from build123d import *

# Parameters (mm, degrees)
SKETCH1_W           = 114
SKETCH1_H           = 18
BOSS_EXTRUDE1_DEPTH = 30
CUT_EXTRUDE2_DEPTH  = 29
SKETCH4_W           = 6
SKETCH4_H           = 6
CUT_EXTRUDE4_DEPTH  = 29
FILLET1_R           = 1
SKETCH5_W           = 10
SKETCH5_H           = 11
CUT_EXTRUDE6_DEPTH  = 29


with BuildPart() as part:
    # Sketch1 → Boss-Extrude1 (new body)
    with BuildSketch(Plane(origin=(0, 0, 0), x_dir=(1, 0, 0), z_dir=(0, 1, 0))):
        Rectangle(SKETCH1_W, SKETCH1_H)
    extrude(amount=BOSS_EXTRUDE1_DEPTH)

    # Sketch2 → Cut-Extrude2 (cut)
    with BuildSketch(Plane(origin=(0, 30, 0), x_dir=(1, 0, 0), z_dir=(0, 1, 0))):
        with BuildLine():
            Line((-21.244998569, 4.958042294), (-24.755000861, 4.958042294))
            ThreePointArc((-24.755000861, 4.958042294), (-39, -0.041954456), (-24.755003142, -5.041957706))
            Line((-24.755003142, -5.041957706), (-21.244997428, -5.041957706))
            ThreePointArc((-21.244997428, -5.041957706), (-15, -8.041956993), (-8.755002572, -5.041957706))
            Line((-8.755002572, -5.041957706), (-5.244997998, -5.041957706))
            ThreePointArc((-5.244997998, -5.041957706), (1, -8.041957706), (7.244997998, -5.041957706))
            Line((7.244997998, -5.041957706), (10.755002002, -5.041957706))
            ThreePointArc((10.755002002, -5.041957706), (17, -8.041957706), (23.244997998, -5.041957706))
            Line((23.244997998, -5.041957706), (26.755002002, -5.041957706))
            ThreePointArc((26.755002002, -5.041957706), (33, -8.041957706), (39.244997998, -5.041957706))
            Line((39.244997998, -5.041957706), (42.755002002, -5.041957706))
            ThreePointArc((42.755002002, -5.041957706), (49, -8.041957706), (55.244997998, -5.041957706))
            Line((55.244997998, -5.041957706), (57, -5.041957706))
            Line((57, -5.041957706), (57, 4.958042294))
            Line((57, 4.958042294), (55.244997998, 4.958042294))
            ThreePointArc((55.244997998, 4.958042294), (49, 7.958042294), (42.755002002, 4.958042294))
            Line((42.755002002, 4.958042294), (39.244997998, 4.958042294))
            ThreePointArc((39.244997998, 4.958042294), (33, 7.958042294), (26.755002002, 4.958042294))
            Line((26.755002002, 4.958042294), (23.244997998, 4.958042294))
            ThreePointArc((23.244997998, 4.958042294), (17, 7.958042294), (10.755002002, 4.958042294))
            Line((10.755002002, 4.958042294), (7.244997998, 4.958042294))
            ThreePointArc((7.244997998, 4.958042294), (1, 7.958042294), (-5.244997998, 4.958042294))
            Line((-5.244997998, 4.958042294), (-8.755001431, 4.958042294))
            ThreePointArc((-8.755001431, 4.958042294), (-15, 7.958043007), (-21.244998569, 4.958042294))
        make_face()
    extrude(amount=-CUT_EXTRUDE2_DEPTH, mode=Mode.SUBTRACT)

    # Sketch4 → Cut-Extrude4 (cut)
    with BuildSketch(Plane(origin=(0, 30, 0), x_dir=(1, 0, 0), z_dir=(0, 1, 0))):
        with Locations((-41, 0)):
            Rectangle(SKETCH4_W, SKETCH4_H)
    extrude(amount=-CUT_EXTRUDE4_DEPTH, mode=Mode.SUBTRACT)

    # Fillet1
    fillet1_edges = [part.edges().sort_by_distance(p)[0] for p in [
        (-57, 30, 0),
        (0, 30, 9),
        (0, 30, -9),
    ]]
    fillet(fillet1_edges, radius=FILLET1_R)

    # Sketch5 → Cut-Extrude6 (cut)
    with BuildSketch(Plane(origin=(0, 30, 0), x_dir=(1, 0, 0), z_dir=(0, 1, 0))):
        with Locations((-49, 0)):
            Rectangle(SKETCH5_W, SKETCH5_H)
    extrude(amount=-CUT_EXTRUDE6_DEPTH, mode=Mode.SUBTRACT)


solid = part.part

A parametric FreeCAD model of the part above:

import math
import FreeCAD as App
import Part
import Sketcher
from FreeCAD import Vector
Q = App.Units.Quantity


def edges_at(feature, points):
    """Names of the edges that pass closest to the given points."""
    edges = feature.Shape.Edges
    near = lambda p: min(range(len(edges)), key=lambda i: edges[i].distToShape(Part.Vertex(*p))[0])
    return sorted({f"Edge{near(p) + 1}" for p in points})

doc = App.newDocument("Part")
body = doc.addObject("PartDesign::Body", "Body")

# Sketch on XZ plane
sketch1 = body.newObject("Sketcher::SketchObject", "Sketch")
sketch1.AttachmentSupport = (doc.getObject("XZ_Plane"), [""])
sketch1.MapMode = "FlatFace"
sketch1.addGeometry(Part.LineSegment(Vector(-57, -9, 0), Vector(-57, 9, 0)), False)
sketch1.addGeometry(Part.LineSegment(Vector(-57, 9, 0), Vector(57, 9, 0)), False)
sketch1.addGeometry(Part.LineSegment(Vector(57, 9, 0), Vector(57, -9, 0)), False)
sketch1.addGeometry(Part.LineSegment(Vector(57, -9, 0), Vector(-57, -9, 0)), False)
sketch1.addConstraint(Sketcher.Constraint("Coincident", 0, 2, 1, 1))
sketch1.addConstraint(Sketcher.Constraint("Coincident", 1, 2, 2, 1))
sketch1.addConstraint(Sketcher.Constraint("Coincident", 2, 2, 3, 1))
sketch1.addConstraint(Sketcher.Constraint("Coincident", 3, 2, 0, 1))
sketch1.addConstraint(Sketcher.Constraint("Vertical", 0))
sketch1.addConstraint(Sketcher.Constraint("Horizontal", 1))
sketch1.addConstraint(Sketcher.Constraint("Vertical", 2))
sketch1.addConstraint(Sketcher.Constraint("Horizontal", 3))
sketch1.addConstraint(Sketcher.Constraint("Symmetric", 0, 2, 2, 2, -1, 1))
sketch1.addConstraint(Sketcher.Constraint("DistanceX", 1, 1, 1, 2, Q("114 mm")))
sketch1.addConstraint(Sketcher.Constraint("DistanceY", 0, 1, 0, 2, Q("18 mm")))
pad1 = body.newObject("PartDesign::Pad", "Pad")
pad1.Profile = sketch1
pad1.Length = 30
pad1.Reversed = True

# Sketch on XZ plane
sketch2 = body.newObject("Sketcher::SketchObject", "Sketch001")
sketch2.AttachmentSupport = (doc.getObject("XZ_Plane"), [""])
sketch2.MapMode = "FlatFace"
sketch2.AttachmentOffset = App.Placement(Vector(0, 0, -30), App.Rotation())
sketch2.addGeometry(Part.LineSegment(Vector(-21.2, -5, 0), Vector(-24.8, -5, 0)), False)
sketch2.addGeometry(Part.ArcOfCircle(Part.Circle(Vector(-31, 0, 0), Vector(0, 0, 1), 8), math.radians(39), math.radians(321)), False)
sketch2.addGeometry(Part.LineSegment(Vector(-24.8, 5, 0), Vector(-21.2, 5, 0)), False)
sketch2.addGeometry(Part.ArcOfCircle(Part.Circle(Vector(-15, 0, 0), Vector(0, 0, 1), 8), math.radians(39), math.radians(141)), False)
sketch2.addGeometry(Part.LineSegment(Vector(-8.8, 5, 0), Vector(-5.2, 5, 0)), False)
sketch2.addGeometry(Part.ArcOfCircle(Part.Circle(Vector(1, 0, 0), Vector(0, 0, 1), 8), math.radians(39), math.radians(141)), False)
sketch2.addGeometry(Part.LineSegment(Vector(7.2, 5, 0), Vector(10.8, 5, 0)), False)
sketch2.addGeometry(Part.ArcOfCircle(Part.Circle(Vector(17, 0, 0), Vector(0, 0, 1), 8), math.radians(39), math.radians(141)), False)
sketch2.addGeometry(Part.LineSegment(Vector(23.2, 5, 0), Vector(26.8, 5, 0)), False)
sketch2.addGeometry(Part.ArcOfCircle(Part.Circle(Vector(33, 0, 0), Vector(0, 0, 1), 8), math.radians(39), math.radians(141)), False)
sketch2.addGeometry(Part.LineSegment(Vector(39.2, 5, 0), Vector(42.8, 5, 0)), False)
sketch2.addGeometry(Part.ArcOfCircle(Part.Circle(Vector(49, 0, 0), Vector(0, 0, 1), 8), math.radians(39), math.radians(141)), False)
sketch2.addGeometry(Part.LineSegment(Vector(55.2, 5, 0), Vector(57, 5, 0)), False)
sketch2.addGeometry(Part.LineSegment(Vector(57, 5, 0), Vector(57, -5, 0)), False)
sketch2.addGeometry(Part.LineSegment(Vector(57, -5, 0), Vector(55.2, -5, 0)), False)
sketch2.addGeometry(Part.ArcOfCircle(Part.Circle(Vector(49, 0, 0), Vector(0, 0, 1), 8), math.radians(-141), math.radians(-39)), False)
sketch2.addGeometry(Part.LineSegment(Vector(42.8, -5, 0), Vector(39.2, -5, 0)), False)
sketch2.addGeometry(Part.ArcOfCircle(Part.Circle(Vector(33, 0, 0), Vector(0, 0, 1), 8), math.radians(-141), math.radians(-39)), False)
sketch2.addGeometry(Part.LineSegment(Vector(26.8, -5, 0), Vector(23.2, -5, 0)), False)
sketch2.addGeometry(Part.ArcOfCircle(Part.Circle(Vector(17, 0, 0), Vector(0, 0, 1), 8), math.radians(-141), math.radians(-39)), False)
sketch2.addGeometry(Part.LineSegment(Vector(10.8, -5, 0), Vector(7.2, -5, 0)), False)
sketch2.addGeometry(Part.ArcOfCircle(Part.Circle(Vector(1, 0, 0), Vector(0, 0, 1), 8), math.radians(-141), math.radians(-39)), False)
sketch2.addGeometry(Part.LineSegment(Vector(-5.2, -5, 0), Vector(-8.8, -5, 0)), False)
sketch2.addGeometry(Part.ArcOfCircle(Part.Circle(Vector(-15, 0, 0), Vector(0, 0, 1), 8), math.radians(-141), math.radians(-39)), False)
sketch2.addConstraint(Sketcher.Constraint("Coincident", 0, 2, 1, 2))
sketch2.addConstraint(Sketcher.Constraint("Coincident", 1, 1, 2, 1))
sketch2.addConstraint(Sketcher.Constraint("Coincident", 2, 2, 3, 2))
sketch2.addConstraint(Sketcher.Constraint("Coincident", 3, 1, 4, 1))
sketch2.addConstraint(Sketcher.Constraint("Coincident", 4, 2, 5, 2))
sketch2.addConstraint(Sketcher.Constraint("Coincident", 5, 1, 6, 1))
sketch2.addConstraint(Sketcher.Constraint("Coincident", 6, 2, 7, 2))
sketch2.addConstraint(Sketcher.Constraint("Coincident", 7, 1, 8, 1))
sketch2.addConstraint(Sketcher.Constraint("Coincident", 8, 2, 9, 2))
sketch2.addConstraint(Sketcher.Constraint("Coincident", 9, 1, 10, 1))
sketch2.addConstraint(Sketcher.Constraint("Coincident", 10, 2, 11, 2))
sketch2.addConstraint(Sketcher.Constraint("Coincident", 11, 1, 12, 1))
sketch2.addConstraint(Sketcher.Constraint("Coincident", 12, 2, 13, 1))
sketch2.addConstraint(Sketcher.Constraint("Coincident", 13, 2, 14, 1))
sketch2.addConstraint(Sketcher.Constraint("Coincident", 14, 2, 15, 2))
sketch2.addConstraint(Sketcher.Constraint("Coincident", 15, 1, 16, 1))
sketch2.addConstraint(Sketcher.Constraint("Coincident", 16, 2, 17, 2))
sketch2.addConstraint(Sketcher.Constraint("Coincident", 17, 1, 18, 1))
sketch2.addConstraint(Sketcher.Constraint("Coincident", 18, 2, 19, 2))
sketch2.addConstraint(Sketcher.Constraint("Coincident", 19, 1, 20, 1))
sketch2.addConstraint(Sketcher.Constraint("Coincident", 20, 2, 21, 2))
sketch2.addConstraint(Sketcher.Constraint("Coincident", 21, 1, 22, 1))
sketch2.addConstraint(Sketcher.Constraint("Coincident", 22, 2, 23, 2))
sketch2.addConstraint(Sketcher.Constraint("Coincident", 23, 1, 0, 1))
sketch2.addConstraint(Sketcher.Constraint("Horizontal", 0))
sketch2.addConstraint(Sketcher.Constraint("Horizontal", 2))
sketch2.addConstraint(Sketcher.Constraint("Horizontal", 4))
sketch2.addConstraint(Sketcher.Constraint("Horizontal", 6))
sketch2.addConstraint(Sketcher.Constraint("Horizontal", 8))
sketch2.addConstraint(Sketcher.Constraint("Horizontal", 10))
sketch2.addConstraint(Sketcher.Constraint("Horizontal", 12))
sketch2.addConstraint(Sketcher.Constraint("Vertical", 13))
sketch2.addConstraint(Sketcher.Constraint("Horizontal", 14))
sketch2.addConstraint(Sketcher.Constraint("Horizontal", 16))
sketch2.addConstraint(Sketcher.Constraint("Horizontal", 18))
sketch2.addConstraint(Sketcher.Constraint("Horizontal", 20))
sketch2.addConstraint(Sketcher.Constraint("Horizontal", 22))
sketch2.addConstraint(Sketcher.Constraint("Coincident", 15, 3, 11, 3))
sketch2.addConstraint(Sketcher.Constraint("Coincident", 17, 3, 9, 3))
sketch2.addConstraint(Sketcher.Constraint("Coincident", 19, 3, 7, 3))
sketch2.addConstraint(Sketcher.Constraint("Coincident", 21, 3, 5, 3))
sketch2.addConstraint(Sketcher.Constraint("Coincident", 23, 3, 3, 3))
sketch2.addConstraint(Sketcher.Constraint("Equal", 1, 3))
sketch2.addConstraint(Sketcher.Constraint("Equal", 3, 5))
sketch2.addConstraint(Sketcher.Constraint("Equal", 5, 7))
sketch2.addConstraint(Sketcher.Constraint("Equal", 7, 9))
sketch2.addConstraint(Sketcher.Constraint("Equal", 9, 11))
sketch2.addConstraint(Sketcher.Constraint("Equal", 11, 15))
sketch2.addConstraint(Sketcher.Constraint("Equal", 15, 17))
sketch2.addConstraint(Sketcher.Constraint("Equal", 17, 19))
sketch2.addConstraint(Sketcher.Constraint("Equal", 19, 21))
sketch2.addConstraint(Sketcher.Constraint("Equal", 21, 23))
sketch2.addConstraint(Sketcher.Constraint("Horizontal", 1, 3, 3, 3))
sketch2.addConstraint(Sketcher.Constraint("Horizontal", 3, 3, 5, 3))
sketch2.addConstraint(Sketcher.Constraint("Horizontal", 5, 3, 7, 3))
sketch2.addConstraint(Sketcher.Constraint("Horizontal", 7, 3, 9, 3))
sketch2.addConstraint(Sketcher.Constraint("Horizontal", 9, 3, 11, 3))
sketch2.addConstraint(Sketcher.Constraint("Horizontal", 2, 2, 3, 1))
sketch2.addConstraint(Sketcher.Constraint("Horizontal", 4, 2, 5, 1))
sketch2.addConstraint(Sketcher.Constraint("Horizontal", 6, 2, 7, 1))
sketch2.addConstraint(Sketcher.Constraint("Horizontal", 8, 2, 9, 1))
sketch2.addConstraint(Sketcher.Constraint("Horizontal", 10, 2, 11, 1))
sketch2.addConstraint(Sketcher.Constraint("Horizontal", 0, 2, 13, 2))
sketch2.addConstraint(Sketcher.Constraint("Horizontal", 14, 2, 15, 1))
sketch2.addConstraint(Sketcher.Constraint("Horizontal", 16, 2, 17, 1))
sketch2.addConstraint(Sketcher.Constraint("Horizontal", 18, 2, 19, 1))
sketch2.addConstraint(Sketcher.Constraint("Horizontal", 20, 2, 21, 1))
sketch2.addConstraint(Sketcher.Constraint("Vertical", 11, 1, 14, 2))
sketch2.addConstraint(Sketcher.Constraint("Equal", 2, 4))
sketch2.addConstraint(Sketcher.Constraint("Equal", 4, 6))
sketch2.addConstraint(Sketcher.Constraint("Equal", 6, 8))
sketch2.addConstraint(Sketcher.Constraint("Equal", 8, 10))
sketch2.addConstraint(Sketcher.Constraint("Radius", 1, Q("8 mm")))
sketch2.addConstraint(Sketcher.Constraint("DistanceY", 13, 2, 13, 1, Q("10 mm")))
sketch2.addConstraint(Sketcher.Constraint("DistanceX", 1, 3, -1, 1, Q("31 mm")))
sketch2.addConstraint(Sketcher.Constraint("DistanceX", 3, 3, -1, 1, Q("15 mm")))
sketch2.addConstraint(Sketcher.Constraint("DistanceX", -1, 1, 12, 2, Q("57 mm")))
sketch2.addConstraint(Sketcher.Constraint("DistanceY", -1, 1, 1, 3, Q("0.041956 mm")))
pocket1 = body.newObject("PartDesign::Pocket", "Pocket")
pocket1.Profile = sketch2
pocket1.Length = 29
pocket1.Reversed = True

# Sketch on XZ plane
sketch3 = body.newObject("Sketcher::SketchObject", "Sketch002")
sketch3.AttachmentSupport = (doc.getObject("XZ_Plane"), [""])
sketch3.MapMode = "FlatFace"
sketch3.AttachmentOffset = App.Placement(Vector(0, 0, -30), App.Rotation())
sketch3.addGeometry(Part.LineSegment(Vector(-44, -3, 0), Vector(-44, 3, 0)), False)
sketch3.addGeometry(Part.LineSegment(Vector(-44, 3, 0), Vector(-38, 3, 0)), False)
sketch3.addGeometry(Part.LineSegment(Vector(-38, 3, 0), Vector(-38, -3, 0)), False)
sketch3.addGeometry(Part.LineSegment(Vector(-38, -3, 0), Vector(-44, -3, 0)), False)
sketch3.addConstraint(Sketcher.Constraint("Coincident", 0, 2, 1, 1))
sketch3.addConstraint(Sketcher.Constraint("Coincident", 1, 2, 2, 1))
sketch3.addConstraint(Sketcher.Constraint("Coincident", 2, 2, 3, 1))
sketch3.addConstraint(Sketcher.Constraint("Coincident", 3, 2, 0, 1))
sketch3.addConstraint(Sketcher.Constraint("Vertical", 0))
sketch3.addConstraint(Sketcher.Constraint("Horizontal", 1))
sketch3.addConstraint(Sketcher.Constraint("Vertical", 2))
sketch3.addConstraint(Sketcher.Constraint("Horizontal", 3))
sketch3.addConstraint(Sketcher.Constraint("Equal", 3, 0))
sketch3.addConstraint(Sketcher.Constraint("DistanceX", 1, 1, 1, 2, Q("6 mm")))
sketch3.addConstraint(Sketcher.Constraint("DistanceX", 0, 2, -1, 1, Q("44 mm")))
sketch3.addConstraint(Sketcher.Constraint("DistanceY", -1, 1, 0, 2, Q("3 mm")))
pocket2 = body.newObject("PartDesign::Pocket", "Pocket001")
pocket2.Profile = sketch3
pocket2.Length = 29
pocket2.Reversed = True
doc.recompute()

fillet = body.newObject("PartDesign::Fillet", "Fillet")
fillet.Base = (pocket2, edges_at(pocket2, [(-57, 30, 0), (0, 30, 9), (0, 30, -9)]))
fillet.Radius = 1

# Sketch on XZ plane
sketch4 = body.newObject("Sketcher::SketchObject", "Sketch003")
sketch4.AttachmentSupport = (doc.getObject("XZ_Plane"), [""])
sketch4.MapMode = "FlatFace"
sketch4.AttachmentOffset = App.Placement(Vector(0, 0, -30), App.Rotation())
sketch4.addGeometry(Part.LineSegment(Vector(-54, -6, 0), Vector(-54, 6, 0)), False)
sketch4.addGeometry(Part.LineSegment(Vector(-54, 6, 0), Vector(-44, 6, 0)), False)
sketch4.addGeometry(Part.LineSegment(Vector(-44, 6, 0), Vector(-44, -6, 0)), False)
sketch4.addGeometry(Part.LineSegment(Vector(-44, -6, 0), Vector(-54, -6, 0)), False)
sketch4.addConstraint(Sketcher.Constraint("Coincident", 0, 2, 1, 1))
sketch4.addConstraint(Sketcher.Constraint("Coincident", 1, 2, 2, 1))
sketch4.addConstraint(Sketcher.Constraint("Coincident", 2, 2, 3, 1))
sketch4.addConstraint(Sketcher.Constraint("Coincident", 3, 2, 0, 1))
sketch4.addConstraint(Sketcher.Constraint("Vertical", 0))
sketch4.addConstraint(Sketcher.Constraint("Horizontal", 1))
sketch4.addConstraint(Sketcher.Constraint("Vertical", 2))
sketch4.addConstraint(Sketcher.Constraint("Horizontal", 3))
sketch4.addConstraint(Sketcher.Constraint("DistanceX", 1, 1, 1, 2, Q("10 mm")))
sketch4.addConstraint(Sketcher.Constraint("DistanceY", 0, 1, 0, 2, Q("11 mm")))
sketch4.addConstraint(Sketcher.Constraint("DistanceX", 0, 2, -1, 1, Q("54 mm")))
sketch4.addConstraint(Sketcher.Constraint("DistanceY", -1, 1, 0, 2, Q("5.5 mm")))
pocket3 = body.newObject("PartDesign::Pocket", "Pocket002")
pocket3.Profile = sketch4
pocket3.Length = 29
pocket3.Reversed = True

doc.recompute()
